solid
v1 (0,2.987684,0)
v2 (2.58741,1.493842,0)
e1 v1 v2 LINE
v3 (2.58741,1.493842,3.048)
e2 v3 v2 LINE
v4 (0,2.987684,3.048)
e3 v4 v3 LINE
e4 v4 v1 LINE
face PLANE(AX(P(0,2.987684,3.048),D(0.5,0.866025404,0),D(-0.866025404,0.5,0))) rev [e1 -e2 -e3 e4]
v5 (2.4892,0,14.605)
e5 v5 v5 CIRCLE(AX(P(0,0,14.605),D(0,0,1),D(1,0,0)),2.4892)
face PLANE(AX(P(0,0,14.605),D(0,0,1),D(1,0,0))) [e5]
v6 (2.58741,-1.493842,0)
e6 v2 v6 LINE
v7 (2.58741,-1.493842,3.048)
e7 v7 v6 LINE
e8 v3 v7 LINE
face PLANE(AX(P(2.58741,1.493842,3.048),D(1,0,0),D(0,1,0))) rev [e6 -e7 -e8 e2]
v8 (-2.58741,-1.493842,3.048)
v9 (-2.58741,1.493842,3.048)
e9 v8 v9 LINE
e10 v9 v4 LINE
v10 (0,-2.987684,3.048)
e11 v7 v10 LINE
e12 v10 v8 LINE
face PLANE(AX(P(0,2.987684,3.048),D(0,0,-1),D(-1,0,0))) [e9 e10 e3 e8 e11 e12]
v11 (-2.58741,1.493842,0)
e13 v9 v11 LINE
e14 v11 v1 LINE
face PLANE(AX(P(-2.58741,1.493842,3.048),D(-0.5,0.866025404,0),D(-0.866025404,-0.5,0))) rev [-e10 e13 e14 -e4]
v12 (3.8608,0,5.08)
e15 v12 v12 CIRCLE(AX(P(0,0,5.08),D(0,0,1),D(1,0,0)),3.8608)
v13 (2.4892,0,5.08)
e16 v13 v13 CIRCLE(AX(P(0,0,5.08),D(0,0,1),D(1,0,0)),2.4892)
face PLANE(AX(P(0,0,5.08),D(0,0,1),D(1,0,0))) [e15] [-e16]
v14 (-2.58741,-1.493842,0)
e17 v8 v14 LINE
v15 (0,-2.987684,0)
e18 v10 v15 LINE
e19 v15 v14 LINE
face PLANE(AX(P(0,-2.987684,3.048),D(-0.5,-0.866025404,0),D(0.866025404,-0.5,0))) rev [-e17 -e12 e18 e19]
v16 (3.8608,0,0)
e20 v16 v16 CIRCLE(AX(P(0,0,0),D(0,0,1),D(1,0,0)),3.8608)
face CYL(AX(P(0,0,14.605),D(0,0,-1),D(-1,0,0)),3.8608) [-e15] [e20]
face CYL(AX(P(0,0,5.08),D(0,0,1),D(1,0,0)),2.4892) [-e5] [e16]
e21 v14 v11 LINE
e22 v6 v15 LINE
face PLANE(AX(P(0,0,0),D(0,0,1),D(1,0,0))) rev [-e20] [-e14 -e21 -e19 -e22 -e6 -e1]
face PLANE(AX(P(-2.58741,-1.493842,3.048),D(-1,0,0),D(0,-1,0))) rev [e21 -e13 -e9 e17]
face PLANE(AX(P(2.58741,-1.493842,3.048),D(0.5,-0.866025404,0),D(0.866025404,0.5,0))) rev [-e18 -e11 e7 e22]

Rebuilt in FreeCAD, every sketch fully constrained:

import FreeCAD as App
import Part
import Sketcher
Q = App.Units.Quantity

doc = App.newDocument("Part")
body = doc.addObject("PartDesign::Body", "Body")

sketch1 = doc.addObject("Sketcher::SketchObject", "Sketch")
body.addObject(sketch1)
sketch1.AttachmentSupport = (doc.XY_Plane, [""])
sketch1.MapMode = "FlatFace"
sketch1.addGeometry(Part.Circle(App.Vector(0, 0, 0), App.Vector(0, 0, 1), 3.9), False)
sketch1.addConstraint(Sketcher.Constraint("Coincident", 0, 3, -1, 1))
sketch1.addConstraint(Sketcher.Constraint("Diameter", 0, Q("0.304 in")))
pad1 = doc.addObject("PartDesign::Pad", "Pad")
body.addObject(pad1)
pad1.Profile = sketch1
pad1.Length = Q("0.575 in")

sketch2 = doc.addObject("Sketcher::SketchObject", "Sketch001")
body.addObject(sketch2)
sketch2.AttachmentSupport = (doc.XY_Plane, [""])
sketch2.MapMode = "FlatFace"
sketch2.AttachmentOffset = App.Placement(App.Vector(0, 0, 0.575 * 25.4), App.Rotation())
sketch2.addGeometry(Part.LineSegment(App.Vector(-6.7, 6.7, 0), App.Vector(-6.7, -6.7, 0)), False)
sketch2.addGeometry(Part.LineSegment(App.Vector(-6.7, -6.7, 0), App.Vector(6.7, -6.7, 0)), False)
sketch2.addGeometry(Part.LineSegment(App.Vector(6.7, -6.7, 0), App.Vector(6.7, 6.7, 0)), False)
sketch2.addGeometry(Part.LineSegment(App.Vector(6.7, 6.7, 0), App.Vector(-6.7, 6.7, 0)), False)
sketch2.addGeometry(Part.Circle(App.Vector(0, 0, 0), App.Vector(0, 0, 1), 2.5), False)
sketch2.addConstraint(Sketcher.Constraint("Coincident", 0, 2, 1, 1))
sketch2.addConstraint(Sketcher.Constraint("Coincident", 1, 2, 2, 1))
sketch2.addConstraint(Sketcher.Constraint("Coincident", 2, 2, 3, 1))
sketch2.addConstraint(Sketcher.Constraint("Coincident", 3, 2, 0, 1))
sketch2.addConstraint(Sketcher.Constraint("Vertical", 0))
sketch2.addConstraint(Sketcher.Constraint("Horizontal", 1))
sketch2.addConstraint(Sketcher.Constraint("Vertical", 2))
sketch2.addConstraint(Sketcher.Constraint("Horizontal", 3))
sketch2.addConstraint(Sketcher.Constraint("Coincident", 4, 3, -1, 1))
sketch2.addConstraint(Sketcher.Constraint("Symmetric", 0, 2, 2, 2, -1, 1))
sketch2.addConstraint(Sketcher.Constraint("Equal", 3, 0))
sketch2.addConstraint(Sketcher.Constraint("Diameter", 4, Q("0.196 in")))
sketch2.addConstraint(Sketcher.Constraint("DistanceX", 1, 1, 1, 2, 13.37))
pocket1 = doc.addObject("PartDesign::Pocket", "Pocket")
body.addObject(pocket1)
pocket1.Profile = sketch2
pocket1.Length = Q("0.375 in")

sketch3 = doc.addObject("Sketcher::SketchObject", "Sketch002")
body.addObject(sketch3)
sketch3.AttachmentSupport = (doc.XY_Plane, [""])
sketch3.MapMode = "FlatFace"
sketch3.addGeometry(Part.LineSegment(App.Vector(0, 3, 0), App.Vector(2.6, 1.5, 0)), False)
sketch3.addGeometry(Part.LineSegment(App.Vector(2.6, 1.5, 0), App.Vector(2.6, -1.5, 0)), False)
sketch3.addGeometry(Part.LineSegment(App.Vector(2.6, -1.5, 0), App.Vector(0, -3, 0)), False)
sketch3.addGeometry(Part.LineSegment(App.Vector(0, -3, 0), App.Vector(-2.6, -1.5, 0)), False)
sketch3.addGeometry(Part.LineSegment(App.Vector(-2.6, -1.5, 0), App.Vector(-2.6, 1.5, 0)), False)
sketch3.addGeometry(Part.LineSegment(App.Vector(-2.6, 1.5, 0), App.Vector(0, 3, 0)), False)
sketch3.addConstraint(Sketcher.Constraint("Coincident", 0, 2, 1, 1))
sketch3.addConstraint(Sketcher.Constraint("Coincident", 1, 2, 2, 1))
sketch3.addConstraint(Sketcher.Constraint("Coincident", 2, 2, 3, 1))
sketch3.addConstraint(Sketcher.Constraint("Coincident", 3, 2, 4, 1))
sketch3.addConstraint(Sketcher.Constraint("Coincident", 4, 2, 5, 1))
sketch3.addConstraint(Sketcher.Constraint("Coincident", 5, 2, 0, 1))
sketch3.addConstraint(Sketcher.Constraint("Vertical", 1))
sketch3.addConstraint(Sketcher.Constraint("Vertical", 4))
sketch3.addConstraint(Sketcher.Constraint("Symmetric", 0, 2, 3, 2, -1, 1))
sketch3.addConstraint(Sketcher.Constraint("Symmetric", 2, 2, 5, 2, -1, 1))
sketch3.addConstraint(Sketcher.Constraint("PointOnObject", 2, 2, -2))
sketch3.addConstraint(Sketcher.Constraint("Parallel", 2, 5))
sketch3.addConstraint(Sketcher.Constraint("Horizontal", 1, 2, 3, 2))
sketch3.addConstraint(Sketcher.Constraint("Angle", 0, Q("-30 deg")))
sketch3.addConstraint(Sketcher.Constraint("DistanceY", 1, 2, 1, 1, 2.987684))
sketch3.addConstraint(Sketcher.Constraint("DistanceX", -1, 1, 0, 2, 2.58741))
pocket2 = doc.addObject("PartDesign::Pocket", "Pocket001")
body.addObject(pocket2)
pocket2.Profile = sketch3
pocket2.Length = Q("0.12 in")
pocket2.Reversed = True

doc.recompute()
